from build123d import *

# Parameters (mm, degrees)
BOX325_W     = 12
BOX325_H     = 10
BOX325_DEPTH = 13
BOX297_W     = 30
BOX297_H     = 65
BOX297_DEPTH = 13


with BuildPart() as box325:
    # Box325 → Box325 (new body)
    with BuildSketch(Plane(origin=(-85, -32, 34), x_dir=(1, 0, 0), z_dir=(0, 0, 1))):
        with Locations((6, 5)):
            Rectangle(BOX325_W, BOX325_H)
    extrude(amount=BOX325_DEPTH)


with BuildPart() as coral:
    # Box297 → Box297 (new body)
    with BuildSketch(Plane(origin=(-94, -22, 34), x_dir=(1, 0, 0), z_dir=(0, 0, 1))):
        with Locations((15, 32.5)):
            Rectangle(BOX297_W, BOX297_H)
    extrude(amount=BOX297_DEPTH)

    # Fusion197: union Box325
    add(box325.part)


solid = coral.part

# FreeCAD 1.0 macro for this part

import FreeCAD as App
import Part
import Sketcher
from FreeCAD import Vector
Q = App.Units.Quantity


def add_polygon(sketch, points):
    """Adds a closed chain of lines whose ends are joined by coincident constraints."""
    first, n = sketch.GeometryCount, len(points)
    for a, b in zip(points, points[1:] + points[:1]):
        sketch.addGeometry(Part.LineSegment(App.Vector(*a, 0), App.Vector(*b, 0)), False)
    for i in range(n):
        sketch.addConstraint(Sketcher.Constraint("Coincident", first + i, 2, first + (i + 1) % n, 1))

doc = App.newDocument("Part")
params = doc.addObject("Spreadsheet::Sheet", "Params")
for row, (alias, value) in enumerate([
    ("sketch1_width", "12 mm"),
    ("sketch1_height", "10 mm"),
    ("pad1_length", "13 mm"),
    ("sketch2_width", "30 mm"),
    ("sketch2_height", "65 mm"),
    ("pad2_length", "13 mm"),
], start=1):
    params.set(f"A{row}", alias)
    params.set(f"B{row}", "=" + value)
    params.setAlias(f"B{row}", alias)

body = doc.addObject("PartDesign::Body", "Body")

# Sketch on XY plane
sketch1 = body.newObject("Sketcher::SketchObject", "Sketch")
sketch1.AttachmentSupport = (doc.getObject("XY_Plane"), [""])
sketch1.MapMode = "FlatFace"
sketch1.AttachmentOffset = App.Placement(Vector(0, 0, 34), App.Rotation())
add_polygon(sketch1, [(-85, -22), (-85, -32), (-73, -32), (-73, -22)])  # lines 0-3
sketch1.addConstraint([
    Sketcher.Constraint("Vertical", 0),
    Sketcher.Constraint("Horizontal", 1),
    Sketcher.Constraint("Vertical", 2),
    Sketcher.Constraint("Horizontal", 3),
    Sketcher.Constraint("DistanceX", 1, 1, 1, 2, Q("12 mm")),
    Sketcher.Constraint("DistanceY", 0, 2, 0, 1, Q("10 mm")),
    Sketcher.Constraint("DistanceX", 0, 2, -1, 1, Q("85 mm")),
    Sketcher.Constraint("DistanceY", 0, 2, -1, 1, Q("32 mm")),
])
sketch1.setExpression("Constraints[8]", "Params.sketch1_width")
sketch1.setExpression("Constraints[9]", "Params.sketch1_height")
pad1 = body.newObject("PartDesign::Pad", "Pad")
pad1.Profile = sketch1
pad1.setExpression("Length", "Params.pad1_length")
body2 = doc.addObject("PartDesign::Body", "Body001")

# Sketch on XY plane
sketch2 = body2.newObject("Sketcher::SketchObject", "Sketch001")
sketch2.AttachmentSupport = (doc.getObject("XY_Plane001"), [""])
sketch2.MapMode = "FlatFace"
sketch2.AttachmentOffset = App.Placement(Vector(0, 0, 34), App.Rotation())
add_polygon(sketch2, [(-94, 43), (-94, -22), (-64, -22), (-64, 43)])  # lines 0-3
sketch2.addConstraint([
    Sketcher.Constraint("Vertical", 0),
    Sketcher.Constraint("Horizontal", 1),
    Sketcher.Constraint("Vertical", 2),
    Sketcher.Constraint("Horizontal", 3),
    Sketcher.Constraint("DistanceX", 1, 1, 1, 2, Q("30 mm")),
    Sketcher.Constraint("DistanceY", 0, 2, 0, 1, Q("65 mm")),
    Sketcher.Constraint("DistanceX", 0, 2, -1, 1, Q("94 mm")),
    Sketcher.Constraint("DistanceY", 0, 2, -1, 1, Q("22 mm")),
])
sketch2.setExpression("Constraints[8]", "Params.sketch2_width")
sketch2.setExpression("Constraints[9]", "Params.sketch2_height")
pad2 = body2.newObject("PartDesign::Pad", "Pad001")
pad2.Profile = sketch2
pad2.setExpression("Length", "Params.pad2_length")
doc.recompute()

boolean = body2.newObject("PartDesign::Boolean", "Boolean")
boolean.Type = "Fuse"
boolean.addObjects([body])

doc.recompute()
